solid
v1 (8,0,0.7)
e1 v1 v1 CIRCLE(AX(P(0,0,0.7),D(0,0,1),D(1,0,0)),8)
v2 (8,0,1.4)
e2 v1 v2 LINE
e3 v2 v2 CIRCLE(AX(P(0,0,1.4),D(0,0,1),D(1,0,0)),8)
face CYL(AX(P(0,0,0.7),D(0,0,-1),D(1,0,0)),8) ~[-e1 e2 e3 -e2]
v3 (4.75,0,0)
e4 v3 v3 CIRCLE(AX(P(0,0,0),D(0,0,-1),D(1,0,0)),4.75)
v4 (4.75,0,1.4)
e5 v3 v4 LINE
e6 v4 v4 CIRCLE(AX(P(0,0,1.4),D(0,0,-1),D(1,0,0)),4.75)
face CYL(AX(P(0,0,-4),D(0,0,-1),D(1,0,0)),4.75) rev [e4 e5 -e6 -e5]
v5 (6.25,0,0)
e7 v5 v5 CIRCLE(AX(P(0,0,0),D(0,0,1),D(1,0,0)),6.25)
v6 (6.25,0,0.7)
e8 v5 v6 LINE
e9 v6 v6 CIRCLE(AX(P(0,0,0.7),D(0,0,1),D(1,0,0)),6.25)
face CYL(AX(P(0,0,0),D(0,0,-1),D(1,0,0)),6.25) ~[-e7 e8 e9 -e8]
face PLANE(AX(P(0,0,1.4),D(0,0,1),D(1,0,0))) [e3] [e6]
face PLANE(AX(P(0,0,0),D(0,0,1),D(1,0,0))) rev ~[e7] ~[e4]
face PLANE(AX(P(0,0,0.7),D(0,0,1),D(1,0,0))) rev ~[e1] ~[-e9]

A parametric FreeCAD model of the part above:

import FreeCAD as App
import Part
import Sketcher
from FreeCAD import Vector
Q = App.Units.Quantity

doc = App.newDocument("Part")
body = doc.addObject("PartDesign::Body", "Body")

sketch1 = doc.addObject("Sketcher::SketchObject", "Sketch")
body.addObject(sketch1)
sketch1.AttachmentSupport = (doc.XY_Plane, [""])
sketch1.MapMode = "FlatFace"
sketch1.AttachmentOffset = App.Placement(Vector(0, 0, -4), App.Rotation())
sketch1.addGeometry(Part.Circle(Vector(0, 0, 0), Vector(0, 0, 1), 4.75), False)
sketch1.addConstraint(Sketcher.Constraint("Coincident", 0, 3, -1, 1))
sketch1.addConstraint(Sketcher.Constraint("Diameter", 0, Q("9.5 mm")))
pad1 = doc.addObject("PartDesign::Pad", "Pad")
body.addObject(pad1)
pad1.Profile = sketch1
pad1.Length = 10
body2 = doc.addObject("PartDesign::Body", "Body001")

sketch2 = doc.addObject("Sketcher::SketchObject", "Sketch001")
body2.addObject(sketch2)
sketch2.AttachmentSupport = (doc.getObject("XY_Plane001"), [""])
sketch2.MapMode = "FlatFace"
sketch2.addGeometry(Part.Circle(Vector(0, 0, 0), Vector(0, 0, 1), 6.25), False)
sketch2.addConstraint(Sketcher.Constraint("Coincident", 0, 3, -1, 1))
sketch2.addConstraint(Sketcher.Constraint("Diameter", 0, Q("12.5 mm")))
pad2 = doc.addObject("PartDesign::Pad", "Pad001")
body2.addObject(pad2)
pad2.Profile = sketch2
pad2.Length = 0.7
body3 = doc.addObject("PartDesign::Body", "Body002")

sketch3 = doc.addObject("Sketcher::SketchObject", "Sketch002")
body3.addObject(sketch3)
sketch3.AttachmentSupport = (doc.getObject("XY_Plane002"), [""])
sketch3.MapMode = "FlatFace"
sketch3.AttachmentOffset = App.Placement(Vector(0, 0, 0.7), App.Rotation())
sketch3.addGeometry(Part.Circle(Vector(0, 0, 0), Vector(0, 0, 1), 8), False)
sketch3.addConstraint(Sketcher.Constraint("Coincident", 0, 3, -1, 1))
sketch3.addConstraint(Sketcher.Constraint("Diameter", 0, Q("16 mm")))
pad3 = doc.addObject("PartDesign::Pad", "Pad002")
body3.addObject(pad3)
pad3.Profile = sketch3
pad3.Length = 0.7
doc.recompute()

boolean = doc.addObject("PartDesign::Boolean", "Boolean")
body3.addObject(boolean)
boolean.Type = "Fuse"
boolean.addObjects([body2])
doc.recompute()

boolean2 = doc.addObject("PartDesign::Boolean", "Boolean001")
body3.addObject(boolean2)
boolean2.Type = "Cut"
boolean2.addObjects([body])

doc.recompute()
